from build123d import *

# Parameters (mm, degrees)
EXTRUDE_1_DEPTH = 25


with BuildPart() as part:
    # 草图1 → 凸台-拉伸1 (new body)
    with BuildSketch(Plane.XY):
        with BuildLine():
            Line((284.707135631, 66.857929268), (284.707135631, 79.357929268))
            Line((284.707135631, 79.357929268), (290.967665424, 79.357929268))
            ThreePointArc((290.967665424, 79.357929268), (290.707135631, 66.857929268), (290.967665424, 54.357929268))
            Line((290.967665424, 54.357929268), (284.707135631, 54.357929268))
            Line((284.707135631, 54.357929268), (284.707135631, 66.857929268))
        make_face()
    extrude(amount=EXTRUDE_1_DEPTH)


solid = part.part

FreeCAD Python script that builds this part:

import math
import FreeCAD as App
import Part
import Sketcher

doc = App.newDocument("Part")
params = doc.addObject("Spreadsheet::Sheet", "Params")
for row, (alias, value) in enumerate([
    ("sketch1_radius", "300 mm"),
    ("sketch1_height", "25 mm"),
    ("pad1_length", "25 mm"),
], start=1):
    params.set(f"A{row}", alias)
    params.set(f"B{row}", "=" + value)
    params.setAlias(f"B{row}", alias)

body = doc.addObject("PartDesign::Body", "Body")

sketch1 = doc.addObject("Sketcher::SketchObject", "Sketch")
body.addObject(sketch1)
sketch1.AttachmentSupport = (doc.XY_Plane, [""])
sketch1.MapMode = "FlatFace"
sketch1.addGeometry(Part.LineSegment(App.Vector(290.967665, 79.357929, 0), App.Vector(284.707136, 79.357929, 0)), False)
sketch1.addGeometry(Part.LineSegment(App.Vector(284.707136, 79.357929, 0), App.Vector(284.707136, 54.357929, 0)), False)
sketch1.addGeometry(Part.LineSegment(App.Vector(284.707136, 54.357929, 0), App.Vector(290.967665, 54.357929, 0)), False)
sketch1.addGeometry(Part.ArcOfCircle(Part.Circle(App.Vector(590.707136, 66.857929, 0), App.Vector(0, 0, 1), 300), math.radians(177.611985), math.radians(182.388015)), False)
sketch1.addConstraint(Sketcher.Constraint("Coincident", 0, 2, 1, 1))
sketch1.addConstraint(Sketcher.Constraint("Coincident", 1, 2, 2, 1))
sketch1.addConstraint(Sketcher.Constraint("Coincident", 2, 2, 3, 2))
sketch1.addConstraint(Sketcher.Constraint("Coincident", 3, 1, 0, 1))
sketch1.addConstraint(Sketcher.Constraint("Horizontal", 0))
sketch1.addConstraint(Sketcher.Constraint("Vertical", 1))
sketch1.addConstraint(Sketcher.Constraint("Horizontal", 2))
sketch1.addConstraint(Sketcher.Constraint("Vertical", 2, 2, 3, 1))
sketch1.addConstraint(Sketcher.Constraint("Radius", 3, 300.0))
sketch1.addConstraint(Sketcher.Constraint("DistanceY", 1, 2, 1, 1, 25.0))
sketch1.addConstraint(Sketcher.Constraint("DistanceX", 0, 2, 3, 3, 306.0))
sketch1.addConstraint(Sketcher.Constraint("DistanceY", -1, 1, 3, 3, 66.857929))
sketch1.addConstraint(Sketcher.Constraint("DistanceX", -1, 1, 3, 3, 590.707136))
sketch1.setExpression("Constraints[8]", "Params.sketch1_radius")
sketch1.setExpression("Constraints[9]", "Params.sketch1_height")
pad1 = doc.addObject("PartDesign::Pad", "Pad")
body.addObject(pad1)
pad1.Profile = sketch1
pad1.setExpression("Length", "Params.pad1_length")

doc.recompute()
